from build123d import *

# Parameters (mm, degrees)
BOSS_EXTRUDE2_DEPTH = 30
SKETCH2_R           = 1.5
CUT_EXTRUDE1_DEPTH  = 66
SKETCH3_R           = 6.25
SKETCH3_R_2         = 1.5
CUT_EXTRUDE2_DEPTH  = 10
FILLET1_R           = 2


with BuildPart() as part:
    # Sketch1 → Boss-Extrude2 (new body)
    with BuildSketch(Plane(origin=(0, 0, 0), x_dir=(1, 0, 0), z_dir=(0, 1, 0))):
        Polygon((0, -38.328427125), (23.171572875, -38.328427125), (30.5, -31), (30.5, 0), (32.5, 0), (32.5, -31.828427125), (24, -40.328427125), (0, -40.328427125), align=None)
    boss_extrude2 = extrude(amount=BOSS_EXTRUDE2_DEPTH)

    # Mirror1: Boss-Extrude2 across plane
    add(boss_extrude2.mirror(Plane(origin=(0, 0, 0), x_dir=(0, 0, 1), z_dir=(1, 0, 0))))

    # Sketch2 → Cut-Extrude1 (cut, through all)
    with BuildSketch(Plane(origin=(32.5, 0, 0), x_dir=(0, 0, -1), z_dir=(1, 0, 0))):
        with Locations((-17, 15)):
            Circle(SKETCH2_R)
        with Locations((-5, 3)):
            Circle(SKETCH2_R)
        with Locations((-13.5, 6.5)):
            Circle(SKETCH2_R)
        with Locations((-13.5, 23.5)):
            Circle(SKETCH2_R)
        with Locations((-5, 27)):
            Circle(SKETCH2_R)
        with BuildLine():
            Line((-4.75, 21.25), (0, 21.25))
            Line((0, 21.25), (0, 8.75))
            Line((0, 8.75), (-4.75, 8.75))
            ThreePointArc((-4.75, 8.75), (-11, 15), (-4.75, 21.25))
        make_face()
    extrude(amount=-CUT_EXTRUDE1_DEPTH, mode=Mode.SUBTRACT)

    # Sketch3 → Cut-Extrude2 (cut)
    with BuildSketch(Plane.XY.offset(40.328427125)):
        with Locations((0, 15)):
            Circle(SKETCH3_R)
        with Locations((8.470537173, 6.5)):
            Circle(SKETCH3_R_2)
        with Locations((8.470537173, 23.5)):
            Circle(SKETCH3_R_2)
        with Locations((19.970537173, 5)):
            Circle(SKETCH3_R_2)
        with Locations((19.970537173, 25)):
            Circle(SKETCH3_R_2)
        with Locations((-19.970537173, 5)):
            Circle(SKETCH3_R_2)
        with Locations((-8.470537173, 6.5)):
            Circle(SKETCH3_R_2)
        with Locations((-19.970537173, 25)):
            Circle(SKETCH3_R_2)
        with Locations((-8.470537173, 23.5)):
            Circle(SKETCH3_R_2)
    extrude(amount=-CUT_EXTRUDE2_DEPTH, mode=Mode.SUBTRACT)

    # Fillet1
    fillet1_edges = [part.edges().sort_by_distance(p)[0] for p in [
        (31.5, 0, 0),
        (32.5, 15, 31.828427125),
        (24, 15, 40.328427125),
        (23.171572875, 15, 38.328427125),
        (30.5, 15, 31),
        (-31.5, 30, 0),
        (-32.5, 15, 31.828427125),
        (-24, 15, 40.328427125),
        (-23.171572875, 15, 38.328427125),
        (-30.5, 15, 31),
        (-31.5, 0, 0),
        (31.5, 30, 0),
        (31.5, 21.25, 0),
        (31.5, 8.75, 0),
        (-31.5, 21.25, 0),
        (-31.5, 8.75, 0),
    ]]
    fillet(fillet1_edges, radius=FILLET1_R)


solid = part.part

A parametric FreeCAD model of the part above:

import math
import FreeCAD as App
import Part
import Sketcher
from FreeCAD import Vector
Q = App.Units.Quantity


def edges_at(feature, points):
    """Names of the edges that pass closest to the given points."""
    edges = feature.Shape.Edges
    near = lambda p: min(range(len(edges)), key=lambda i: edges[i].distToShape(Part.Vertex(*p))[0])
    return sorted({f"Edge{near(p) + 1}" for p in points})

doc = App.newDocument("Part")
body = doc.addObject("PartDesign::Body", "Body")

# Sketch on XZ plane
sketch1 = doc.addObject("Sketcher::SketchObject", "Sketch")
body.addObject(sketch1)
sketch1.AttachmentSupport = (doc.XZ_Plane, [""])
sketch1.MapMode = "FlatFace"
sketch1.addGeometry(Part.LineSegment(Vector(23.171573, 38.328427, 0), Vector(0, 38.328427, 0)), False)
sketch1.addGeometry(Part.LineSegment(Vector(0, 38.328427, 0), Vector(0, 40.328427, 0)), False)
sketch1.addGeometry(Part.LineSegment(Vector(0, 40.328427, 0), Vector(24, 40.328427, 0)), False)
sketch1.addGeometry(Part.LineSegment(Vector(24, 40.328427, 0), Vector(32.5, 31.828427, 0)), False)
sketch1.addGeometry(Part.LineSegment(Vector(32.5, 31.828427, 0), Vector(32.5, 0, 0)), False)
sketch1.addGeometry(Part.LineSegment(Vector(32.5, 0, 0), Vector(30.5, 0, 0)), False)
sketch1.addGeometry(Part.LineSegment(Vector(30.5, 0, 0), Vector(30.5, 31, 0)), False)
sketch1.addGeometry(Part.LineSegment(Vector(30.5, 31, 0), Vector(23.171573, 38.328427, 0)), False)
sketch1.addConstraint(Sketcher.Constraint("Coincident", 0, 2, 1, 1))
sketch1.addConstraint(Sketcher.Constraint("Coincident", 1, 2, 2, 1))
sketch1.addConstraint(Sketcher.Constraint("Coincident", 2, 2, 3, 1))
sketch1.addConstraint(Sketcher.Constraint("Coincident", 3, 2, 4, 1))
sketch1.addConstraint(Sketcher.Constraint("Coincident", 4, 2, 5, 1))
sketch1.addConstraint(Sketcher.Constraint("Coincident", 5, 2, 6, 1))
sketch1.addConstraint(Sketcher.Constraint("Coincident", 6, 2, 7, 1))
sketch1.addConstraint(Sketcher.Constraint("Coincident", 7, 2, 0, 1))
sketch1.addConstraint(Sketcher.Constraint("Horizontal", 0))
sketch1.addConstraint(Sketcher.Constraint("Vertical", 1))
sketch1.addConstraint(Sketcher.Constraint("Horizontal", 2))
sketch1.addConstraint(Sketcher.Constraint("Vertical", 4))
sketch1.addConstraint(Sketcher.Constraint("Horizontal", 5))
sketch1.addConstraint(Sketcher.Constraint("Vertical", 6))
sketch1.addConstraint(Sketcher.Constraint("PointOnObject", 0, 2, -2))
sketch1.addConstraint(Sketcher.Constraint("PointOnObject", 4, 2, -1))
sketch1.addConstraint(Sketcher.Constraint("Parallel", 3, 7))
sketch1.addConstraint(Sketcher.Constraint("Equal", 5, 1))
sketch1.addConstraint(Sketcher.Constraint("DistanceX", 2, 1, 2, 2, 24.0))
sketch1.addConstraint(Sketcher.Constraint("DistanceX", 5, 2, 5, 1, 2.0))
sketch1.addConstraint(Sketcher.Constraint("DistanceY", 6, 1, 6, 2, 31.0))
sketch1.addConstraint(Sketcher.Constraint("Angle", 3, Q("-45 deg")))
sketch1.addConstraint(Sketcher.Constraint("DistanceX", -1, 1, 3, 2, 32.5))
sketch1.addConstraint(Sketcher.Constraint("Distance", 7, 10.363961))
pad1 = doc.addObject("PartDesign::Pad", "Pad")
body.addObject(pad1)
pad1.Profile = sketch1
pad1.Length = 30
pad1.Reversed = True
doc.recompute()

mirrored = doc.addObject("PartDesign::Mirrored", "Mirrored")
body.addObject(mirrored)
mirrored.Originals = [pad1]
mirrored.MirrorPlane = (doc.YZ_Plane, [""])
body.Tip = mirrored

# Sketch on YZ plane
sketch2 = doc.addObject("Sketcher::SketchObject", "Sketch001")
body.addObject(sketch2)
sketch2.AttachmentSupport = (doc.YZ_Plane, [""])
sketch2.MapMode = "FlatFace"
sketch2.AttachmentOffset = App.Placement(Vector(0, 0, 32.5), App.Rotation())
sketch2.addGeometry(Part.Circle(Vector(15, 17, 0), Vector(0, 0, 1), 1.5), False)
sketch2.addGeometry(Part.Circle(Vector(3, 5, 0), Vector(0, 0, 1), 1.5), False)
sketch2.addGeometry(Part.Circle(Vector(6.5, 13.5, 0), Vector(0, 0, 1), 1.5), False)
sketch2.addGeometry(Part.Circle(Vector(23.5, 13.5, 0), Vector(0, 0, 1), 1.5), False)
sketch2.addGeometry(Part.Circle(Vector(27, 5, 0), Vector(0, 0, 1), 1.5), False)
sketch2.addGeometry(Part.LineSegment(Vector(21.25, 0, 0), Vector(21.25, 4.75, 0)), False)
sketch2.addGeometry(Part.ArcOfCircle(Part.Circle(Vector(15, 4.75, 0), Vector(0, 0, 1), 6.25), math.radians(0), math.radians(180)), False)
sketch2.addGeometry(Part.LineSegment(Vector(8.75, 4.75, 0), Vector(8.75, 0, 0)), False)
sketch2.addGeometry(Part.LineSegment(Vector(8.75, 0, 0), Vector(21.25, 0, 0)), False)
sketch2.addConstraint(Sketcher.Constraint("Tangent", 5, 2, 6, 1))
sketch2.addConstraint(Sketcher.Constraint("Tangent", 6, 2, 7, 1))
sketch2.addConstraint(Sketcher.Constraint("Coincident", 7, 2, 8, 1))
sketch2.addConstraint(Sketcher.Constraint("Coincident", 8, 2, 5, 1))
sketch2.addConstraint(Sketcher.Constraint("Vertical", 5))
sketch2.addConstraint(Sketcher.Constraint("Vertical", 7))
sketch2.addConstraint(Sketcher.Constraint("Horizontal", 8))
sketch2.addConstraint(Sketcher.Constraint("Equal", 0, 1))
sketch2.addConstraint(Sketcher.Constraint("Equal", 1, 2))
sketch2.addConstraint(Sketcher.Constraint("Equal", 2, 3))
sketch2.addConstraint(Sketcher.Constraint("Equal", 3, 4))
sketch2.addConstraint(Sketcher.Constraint("PointOnObject", 7, 2, -1))
sketch2.addConstraint(Sketcher.Constraint("Horizontal", 2, 3, 3, 3))
sketch2.addConstraint(Sketcher.Constraint("Horizontal", 1, 3, 4, 3))
sketch2.addConstraint(Sketcher.Constraint("Vertical", 0, 3, 6, 3))
sketch2.addConstraint(Sketcher.Constraint("Diameter", 0, 3.0))
sketch2.addConstraint(Sketcher.Constraint("Radius", 6, 6.25))
sketch2.addConstraint(Sketcher.Constraint("DistanceX", -1, 1, 0, 3, 15.0))
sketch2.addConstraint(Sketcher.Constraint("DistanceY", -1, 1, 0, 3, 17.0))
sketch2.addConstraint(Sketcher.Constraint("DistanceX", -1, 1, 1, 3, 3.0))
sketch2.addConstraint(Sketcher.Constraint("DistanceY", -1, 1, 1, 3, 5.0))
sketch2.addConstraint(Sketcher.Constraint("DistanceX", -1, 1, 4, 3, 27.0))
sketch2.addConstraint(Sketcher.Constraint("DistanceX", 2, 3, 3, 3, 17.0))
sketch2.addConstraint(Sketcher.Constraint("DistanceY", 5, 1, 5, 2, 4.75))
sketch2.addConstraint(Sketcher.Constraint("DistanceX", -1, 1, 2, 3, 6.5))
sketch2.addConstraint(Sketcher.Constraint("DistanceY", -1, 1, 2, 3, 13.5))
pocket1 = doc.addObject("PartDesign::Pocket", "Pocket")
body.addObject(pocket1)
pocket1.Profile = sketch2
pocket1.Type = "ThroughAll"

# Sketch on XY plane
sketch3 = doc.addObject("Sketcher::SketchObject", "Sketch002")
body.addObject(sketch3)
sketch3.AttachmentSupport = (doc.XY_Plane, [""])
sketch3.MapMode = "FlatFace"
sketch3.AttachmentOffset = App.Placement(Vector(0, 0, 40.328427), App.Rotation())
sketch3.addGeometry(Part.Circle(Vector(0, 15, 0), Vector(0, 0, 1), 6.25), False)
sketch3.addGeometry(Part.Circle(Vector(8.470537, 6.5, 0), Vector(0, 0, 1), 1.5), False)
sketch3.addGeometry(Part.Circle(Vector(8.470537, 23.5, 0), Vector(0, 0, 1), 1.5), False)
sketch3.addGeometry(Part.Circle(Vector(19.970537, 5, 0), Vector(0, 0, 1), 1.5), False)
sketch3.addGeometry(Part.Circle(Vector(19.970537, 25, 0), Vector(0, 0, 1), 1.5), False)
sketch3.addGeometry(Part.Circle(Vector(-19.970537, 5, 0), Vector(0, 0, 1), 1.5), False)
sketch3.addGeometry(Part.Circle(Vector(-8.470537, 6.5, 0), Vector(0, 0, 1), 1.5), False)
sketch3.addGeometry(Part.Circle(Vector(-19.970537, 25, 0), Vector(0, 0, 1), 1.5), False)
sketch3.addGeometry(Part.Circle(Vector(-8.470537, 23.5, 0), Vector(0, 0, 1), 1.5), False)
sketch3.addConstraint(Sketcher.Constraint("Equal", 1, 2))
sketch3.addConstraint(Sketcher.Constraint("Equal", 2, 3))
sketch3.addConstraint(Sketcher.Constraint("Equal", 3, 4))
sketch3.addConstraint(Sketcher.Constraint("Equal", 4, 5))
sketch3.addConstraint(Sketcher.Constraint("Equal", 5, 6))
sketch3.addConstraint(Sketcher.Constraint("Equal", 6, 7))
sketch3.addConstraint(Sketcher.Constraint("Equal", 7, 8))
sketch3.addConstraint(Sketcher.Constraint("Symmetric", 3, 3, 5, 3, -2))
sketch3.addConstraint(Sketcher.Constraint("Symmetric", 1, 3, 6, 3, -2))
sketch3.addConstraint(Sketcher.Constraint("Symmetric", 4, 3, 7, 3, -2))
sketch3.addConstraint(Sketcher.Constraint("Symmetric", 2, 3, 8, 3, -2))
sketch3.addConstraint(Sketcher.Constraint("PointOnObject", 0, 3, -2))
sketch3.addConstraint(Sketcher.Constraint("Vertical", 1, 3, 2, 3))
sketch3.addConstraint(Sketcher.Constraint("Vertical", 3, 3, 4, 3))
sketch3.addConstraint(Sketcher.Constraint("Diameter", 1, 3.0))
sketch3.addConstraint(Sketcher.Constraint("Diameter", 0, 12.5))
sketch3.addConstraint(Sketcher.Constraint("DistanceY", -1, 1, 0, 3, 15.0))
sketch3.addConstraint(Sketcher.Constraint("DistanceY", -1, 1, 3, 3, 5.0))
sketch3.addConstraint(Sketcher.Constraint("DistanceY", -1, 1, 4, 3, 25.0))
sketch3.addConstraint(Sketcher.Constraint("DistanceY", 1, 3, 2, 3, 17.0))
sketch3.addConstraint(Sketcher.Constraint("DistanceY", -1, 1, 1, 3, 6.5))
sketch3.addConstraint(Sketcher.Constraint("DistanceX", 1, 3, 3, 3, 11.5))
sketch3.addConstraint(Sketcher.Constraint("DistanceX", -1, 1, 1, 3, 8.470537))
pocket2 = doc.addObject("PartDesign::Pocket", "Pocket001")
body.addObject(pocket2)
pocket2.Profile = sketch3
pocket2.Length = 10
doc.recompute()

fillet = doc.addObject("PartDesign::Fillet", "Fillet")
body.addObject(fillet)
fillet.Base = (pocket2, edges_at(pocket2, [
    (31.5, 0, 0),
    (32.5, 15, 31.828),
    (24, 15, 40.328),
    (23.172, 15, 38.328),
    (30.5, 15, 31),
    (-31.5, 30, 0),
    (-32.5, 15, 31.828),
    (-24, 15, 40.328),
    (-23.172, 15, 38.328),
    (-30.5, 15, 31),
    (-31.5, 0, 0),
    (31.5, 30, 0),
    (31.5, 21.25, 0),
    (31.5, 8.75, 0),
    (-31.5, 21.25, 0),
    (-31.5, 8.75, 0),
]))
fillet.Radius = 2

doc.recompute()
